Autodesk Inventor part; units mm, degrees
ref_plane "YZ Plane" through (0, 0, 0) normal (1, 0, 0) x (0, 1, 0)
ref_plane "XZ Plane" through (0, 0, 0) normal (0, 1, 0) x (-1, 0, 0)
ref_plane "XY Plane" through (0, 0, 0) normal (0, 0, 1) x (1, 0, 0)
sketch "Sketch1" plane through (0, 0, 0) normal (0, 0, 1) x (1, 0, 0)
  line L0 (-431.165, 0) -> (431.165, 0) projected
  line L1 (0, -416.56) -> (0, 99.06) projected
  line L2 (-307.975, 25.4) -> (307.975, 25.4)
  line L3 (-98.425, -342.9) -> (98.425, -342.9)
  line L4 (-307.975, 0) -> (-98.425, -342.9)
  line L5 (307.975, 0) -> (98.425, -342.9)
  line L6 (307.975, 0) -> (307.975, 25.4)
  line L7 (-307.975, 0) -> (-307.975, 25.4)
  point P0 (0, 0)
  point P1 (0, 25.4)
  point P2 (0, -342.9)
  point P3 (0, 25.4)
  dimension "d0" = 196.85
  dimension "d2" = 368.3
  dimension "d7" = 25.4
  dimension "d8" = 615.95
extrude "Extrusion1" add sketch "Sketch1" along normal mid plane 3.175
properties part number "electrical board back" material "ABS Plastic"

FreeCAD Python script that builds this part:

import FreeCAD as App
import Part
import Sketcher

V = App.Vector
Q = App.Units.Quantity


def add_polygon(sketch, points):
    """Adds a closed chain of lines whose ends are joined by coincident constraints."""
    first, n = sketch.GeometryCount, len(points)
    for a, b in zip(points, points[1:] + points[:1]):
        sketch.addGeometry(Part.LineSegment(App.Vector(*a, 0), App.Vector(*b, 0)), False)
    for i in range(n):
        sketch.addConstraint(Sketcher.Constraint("Coincident", first + i, 2, first + (i + 1) % n, 1))

doc = App.newDocument("Part")
params = doc.addObject("Spreadsheet::Sheet", "Params")
for row, (alias, value) in enumerate([
    ("sketch1_height", "1 in"),
    ("sketch1_width", "7.75 in"),
    ("sketch1_width2", "24.25 in"),
    ("pad1_length", "0.125 in"),
], start=1):
    params.set(f"A{row}", alias)
    params.set(f"B{row}", "=" + value)
    params.setAlias(f"B{row}", alias)

body = doc.addObject("PartDesign::Body", "Body")

sketch1 = doc.addObject("Sketcher::SketchObject", "Sketch")
body.addObject(sketch1)
sketch1.AttachmentSupport = (doc.XY_Plane, [""])
sketch1.MapMode = "FlatFace"
add_polygon(sketch1, [(-308, 25), (-308, 0), (-98, -343), (98, -343), (308, 0), (308, 25)])
sketch1.addConstraint([
    Sketcher.Constraint("Vertical", 0),
    Sketcher.Constraint("Horizontal", 2),
    Sketcher.Constraint("Vertical", 4),
    Sketcher.Constraint("Horizontal", 5),
    Sketcher.Constraint("Symmetric", 0, 2, 3, 2, -1, 1),
    Sketcher.Constraint("PointOnObject", 0, 2, -1),
    Sketcher.Constraint("Equal", 1, 3),
    Sketcher.Constraint("DistanceY", 0, 2, 0, 1, Q("1 in")),
    Sketcher.Constraint("DistanceX", 2, 1, 2, 2, Q("7.75 in")),
    Sketcher.Constraint("DistanceX", 5, 2, 5, 1, Q("24.25 in")),
    Sketcher.Constraint("DistanceY", 2, 2, 4, 2, Q("14.5 in")),
])
sketch1.setExpression("Constraints[13]", "Params.sketch1_height")
sketch1.setExpression("Constraints[14]", "Params.sketch1_width")
sketch1.setExpression("Constraints[15]", "Params.sketch1_width2")
pad1 = doc.addObject("PartDesign::Pad", "Pad")
body.addObject(pad1)
pad1.Profile = sketch1
pad1.setExpression("Length", "Params.pad1_length")
pad1.Midplane = True

doc.recompute()
